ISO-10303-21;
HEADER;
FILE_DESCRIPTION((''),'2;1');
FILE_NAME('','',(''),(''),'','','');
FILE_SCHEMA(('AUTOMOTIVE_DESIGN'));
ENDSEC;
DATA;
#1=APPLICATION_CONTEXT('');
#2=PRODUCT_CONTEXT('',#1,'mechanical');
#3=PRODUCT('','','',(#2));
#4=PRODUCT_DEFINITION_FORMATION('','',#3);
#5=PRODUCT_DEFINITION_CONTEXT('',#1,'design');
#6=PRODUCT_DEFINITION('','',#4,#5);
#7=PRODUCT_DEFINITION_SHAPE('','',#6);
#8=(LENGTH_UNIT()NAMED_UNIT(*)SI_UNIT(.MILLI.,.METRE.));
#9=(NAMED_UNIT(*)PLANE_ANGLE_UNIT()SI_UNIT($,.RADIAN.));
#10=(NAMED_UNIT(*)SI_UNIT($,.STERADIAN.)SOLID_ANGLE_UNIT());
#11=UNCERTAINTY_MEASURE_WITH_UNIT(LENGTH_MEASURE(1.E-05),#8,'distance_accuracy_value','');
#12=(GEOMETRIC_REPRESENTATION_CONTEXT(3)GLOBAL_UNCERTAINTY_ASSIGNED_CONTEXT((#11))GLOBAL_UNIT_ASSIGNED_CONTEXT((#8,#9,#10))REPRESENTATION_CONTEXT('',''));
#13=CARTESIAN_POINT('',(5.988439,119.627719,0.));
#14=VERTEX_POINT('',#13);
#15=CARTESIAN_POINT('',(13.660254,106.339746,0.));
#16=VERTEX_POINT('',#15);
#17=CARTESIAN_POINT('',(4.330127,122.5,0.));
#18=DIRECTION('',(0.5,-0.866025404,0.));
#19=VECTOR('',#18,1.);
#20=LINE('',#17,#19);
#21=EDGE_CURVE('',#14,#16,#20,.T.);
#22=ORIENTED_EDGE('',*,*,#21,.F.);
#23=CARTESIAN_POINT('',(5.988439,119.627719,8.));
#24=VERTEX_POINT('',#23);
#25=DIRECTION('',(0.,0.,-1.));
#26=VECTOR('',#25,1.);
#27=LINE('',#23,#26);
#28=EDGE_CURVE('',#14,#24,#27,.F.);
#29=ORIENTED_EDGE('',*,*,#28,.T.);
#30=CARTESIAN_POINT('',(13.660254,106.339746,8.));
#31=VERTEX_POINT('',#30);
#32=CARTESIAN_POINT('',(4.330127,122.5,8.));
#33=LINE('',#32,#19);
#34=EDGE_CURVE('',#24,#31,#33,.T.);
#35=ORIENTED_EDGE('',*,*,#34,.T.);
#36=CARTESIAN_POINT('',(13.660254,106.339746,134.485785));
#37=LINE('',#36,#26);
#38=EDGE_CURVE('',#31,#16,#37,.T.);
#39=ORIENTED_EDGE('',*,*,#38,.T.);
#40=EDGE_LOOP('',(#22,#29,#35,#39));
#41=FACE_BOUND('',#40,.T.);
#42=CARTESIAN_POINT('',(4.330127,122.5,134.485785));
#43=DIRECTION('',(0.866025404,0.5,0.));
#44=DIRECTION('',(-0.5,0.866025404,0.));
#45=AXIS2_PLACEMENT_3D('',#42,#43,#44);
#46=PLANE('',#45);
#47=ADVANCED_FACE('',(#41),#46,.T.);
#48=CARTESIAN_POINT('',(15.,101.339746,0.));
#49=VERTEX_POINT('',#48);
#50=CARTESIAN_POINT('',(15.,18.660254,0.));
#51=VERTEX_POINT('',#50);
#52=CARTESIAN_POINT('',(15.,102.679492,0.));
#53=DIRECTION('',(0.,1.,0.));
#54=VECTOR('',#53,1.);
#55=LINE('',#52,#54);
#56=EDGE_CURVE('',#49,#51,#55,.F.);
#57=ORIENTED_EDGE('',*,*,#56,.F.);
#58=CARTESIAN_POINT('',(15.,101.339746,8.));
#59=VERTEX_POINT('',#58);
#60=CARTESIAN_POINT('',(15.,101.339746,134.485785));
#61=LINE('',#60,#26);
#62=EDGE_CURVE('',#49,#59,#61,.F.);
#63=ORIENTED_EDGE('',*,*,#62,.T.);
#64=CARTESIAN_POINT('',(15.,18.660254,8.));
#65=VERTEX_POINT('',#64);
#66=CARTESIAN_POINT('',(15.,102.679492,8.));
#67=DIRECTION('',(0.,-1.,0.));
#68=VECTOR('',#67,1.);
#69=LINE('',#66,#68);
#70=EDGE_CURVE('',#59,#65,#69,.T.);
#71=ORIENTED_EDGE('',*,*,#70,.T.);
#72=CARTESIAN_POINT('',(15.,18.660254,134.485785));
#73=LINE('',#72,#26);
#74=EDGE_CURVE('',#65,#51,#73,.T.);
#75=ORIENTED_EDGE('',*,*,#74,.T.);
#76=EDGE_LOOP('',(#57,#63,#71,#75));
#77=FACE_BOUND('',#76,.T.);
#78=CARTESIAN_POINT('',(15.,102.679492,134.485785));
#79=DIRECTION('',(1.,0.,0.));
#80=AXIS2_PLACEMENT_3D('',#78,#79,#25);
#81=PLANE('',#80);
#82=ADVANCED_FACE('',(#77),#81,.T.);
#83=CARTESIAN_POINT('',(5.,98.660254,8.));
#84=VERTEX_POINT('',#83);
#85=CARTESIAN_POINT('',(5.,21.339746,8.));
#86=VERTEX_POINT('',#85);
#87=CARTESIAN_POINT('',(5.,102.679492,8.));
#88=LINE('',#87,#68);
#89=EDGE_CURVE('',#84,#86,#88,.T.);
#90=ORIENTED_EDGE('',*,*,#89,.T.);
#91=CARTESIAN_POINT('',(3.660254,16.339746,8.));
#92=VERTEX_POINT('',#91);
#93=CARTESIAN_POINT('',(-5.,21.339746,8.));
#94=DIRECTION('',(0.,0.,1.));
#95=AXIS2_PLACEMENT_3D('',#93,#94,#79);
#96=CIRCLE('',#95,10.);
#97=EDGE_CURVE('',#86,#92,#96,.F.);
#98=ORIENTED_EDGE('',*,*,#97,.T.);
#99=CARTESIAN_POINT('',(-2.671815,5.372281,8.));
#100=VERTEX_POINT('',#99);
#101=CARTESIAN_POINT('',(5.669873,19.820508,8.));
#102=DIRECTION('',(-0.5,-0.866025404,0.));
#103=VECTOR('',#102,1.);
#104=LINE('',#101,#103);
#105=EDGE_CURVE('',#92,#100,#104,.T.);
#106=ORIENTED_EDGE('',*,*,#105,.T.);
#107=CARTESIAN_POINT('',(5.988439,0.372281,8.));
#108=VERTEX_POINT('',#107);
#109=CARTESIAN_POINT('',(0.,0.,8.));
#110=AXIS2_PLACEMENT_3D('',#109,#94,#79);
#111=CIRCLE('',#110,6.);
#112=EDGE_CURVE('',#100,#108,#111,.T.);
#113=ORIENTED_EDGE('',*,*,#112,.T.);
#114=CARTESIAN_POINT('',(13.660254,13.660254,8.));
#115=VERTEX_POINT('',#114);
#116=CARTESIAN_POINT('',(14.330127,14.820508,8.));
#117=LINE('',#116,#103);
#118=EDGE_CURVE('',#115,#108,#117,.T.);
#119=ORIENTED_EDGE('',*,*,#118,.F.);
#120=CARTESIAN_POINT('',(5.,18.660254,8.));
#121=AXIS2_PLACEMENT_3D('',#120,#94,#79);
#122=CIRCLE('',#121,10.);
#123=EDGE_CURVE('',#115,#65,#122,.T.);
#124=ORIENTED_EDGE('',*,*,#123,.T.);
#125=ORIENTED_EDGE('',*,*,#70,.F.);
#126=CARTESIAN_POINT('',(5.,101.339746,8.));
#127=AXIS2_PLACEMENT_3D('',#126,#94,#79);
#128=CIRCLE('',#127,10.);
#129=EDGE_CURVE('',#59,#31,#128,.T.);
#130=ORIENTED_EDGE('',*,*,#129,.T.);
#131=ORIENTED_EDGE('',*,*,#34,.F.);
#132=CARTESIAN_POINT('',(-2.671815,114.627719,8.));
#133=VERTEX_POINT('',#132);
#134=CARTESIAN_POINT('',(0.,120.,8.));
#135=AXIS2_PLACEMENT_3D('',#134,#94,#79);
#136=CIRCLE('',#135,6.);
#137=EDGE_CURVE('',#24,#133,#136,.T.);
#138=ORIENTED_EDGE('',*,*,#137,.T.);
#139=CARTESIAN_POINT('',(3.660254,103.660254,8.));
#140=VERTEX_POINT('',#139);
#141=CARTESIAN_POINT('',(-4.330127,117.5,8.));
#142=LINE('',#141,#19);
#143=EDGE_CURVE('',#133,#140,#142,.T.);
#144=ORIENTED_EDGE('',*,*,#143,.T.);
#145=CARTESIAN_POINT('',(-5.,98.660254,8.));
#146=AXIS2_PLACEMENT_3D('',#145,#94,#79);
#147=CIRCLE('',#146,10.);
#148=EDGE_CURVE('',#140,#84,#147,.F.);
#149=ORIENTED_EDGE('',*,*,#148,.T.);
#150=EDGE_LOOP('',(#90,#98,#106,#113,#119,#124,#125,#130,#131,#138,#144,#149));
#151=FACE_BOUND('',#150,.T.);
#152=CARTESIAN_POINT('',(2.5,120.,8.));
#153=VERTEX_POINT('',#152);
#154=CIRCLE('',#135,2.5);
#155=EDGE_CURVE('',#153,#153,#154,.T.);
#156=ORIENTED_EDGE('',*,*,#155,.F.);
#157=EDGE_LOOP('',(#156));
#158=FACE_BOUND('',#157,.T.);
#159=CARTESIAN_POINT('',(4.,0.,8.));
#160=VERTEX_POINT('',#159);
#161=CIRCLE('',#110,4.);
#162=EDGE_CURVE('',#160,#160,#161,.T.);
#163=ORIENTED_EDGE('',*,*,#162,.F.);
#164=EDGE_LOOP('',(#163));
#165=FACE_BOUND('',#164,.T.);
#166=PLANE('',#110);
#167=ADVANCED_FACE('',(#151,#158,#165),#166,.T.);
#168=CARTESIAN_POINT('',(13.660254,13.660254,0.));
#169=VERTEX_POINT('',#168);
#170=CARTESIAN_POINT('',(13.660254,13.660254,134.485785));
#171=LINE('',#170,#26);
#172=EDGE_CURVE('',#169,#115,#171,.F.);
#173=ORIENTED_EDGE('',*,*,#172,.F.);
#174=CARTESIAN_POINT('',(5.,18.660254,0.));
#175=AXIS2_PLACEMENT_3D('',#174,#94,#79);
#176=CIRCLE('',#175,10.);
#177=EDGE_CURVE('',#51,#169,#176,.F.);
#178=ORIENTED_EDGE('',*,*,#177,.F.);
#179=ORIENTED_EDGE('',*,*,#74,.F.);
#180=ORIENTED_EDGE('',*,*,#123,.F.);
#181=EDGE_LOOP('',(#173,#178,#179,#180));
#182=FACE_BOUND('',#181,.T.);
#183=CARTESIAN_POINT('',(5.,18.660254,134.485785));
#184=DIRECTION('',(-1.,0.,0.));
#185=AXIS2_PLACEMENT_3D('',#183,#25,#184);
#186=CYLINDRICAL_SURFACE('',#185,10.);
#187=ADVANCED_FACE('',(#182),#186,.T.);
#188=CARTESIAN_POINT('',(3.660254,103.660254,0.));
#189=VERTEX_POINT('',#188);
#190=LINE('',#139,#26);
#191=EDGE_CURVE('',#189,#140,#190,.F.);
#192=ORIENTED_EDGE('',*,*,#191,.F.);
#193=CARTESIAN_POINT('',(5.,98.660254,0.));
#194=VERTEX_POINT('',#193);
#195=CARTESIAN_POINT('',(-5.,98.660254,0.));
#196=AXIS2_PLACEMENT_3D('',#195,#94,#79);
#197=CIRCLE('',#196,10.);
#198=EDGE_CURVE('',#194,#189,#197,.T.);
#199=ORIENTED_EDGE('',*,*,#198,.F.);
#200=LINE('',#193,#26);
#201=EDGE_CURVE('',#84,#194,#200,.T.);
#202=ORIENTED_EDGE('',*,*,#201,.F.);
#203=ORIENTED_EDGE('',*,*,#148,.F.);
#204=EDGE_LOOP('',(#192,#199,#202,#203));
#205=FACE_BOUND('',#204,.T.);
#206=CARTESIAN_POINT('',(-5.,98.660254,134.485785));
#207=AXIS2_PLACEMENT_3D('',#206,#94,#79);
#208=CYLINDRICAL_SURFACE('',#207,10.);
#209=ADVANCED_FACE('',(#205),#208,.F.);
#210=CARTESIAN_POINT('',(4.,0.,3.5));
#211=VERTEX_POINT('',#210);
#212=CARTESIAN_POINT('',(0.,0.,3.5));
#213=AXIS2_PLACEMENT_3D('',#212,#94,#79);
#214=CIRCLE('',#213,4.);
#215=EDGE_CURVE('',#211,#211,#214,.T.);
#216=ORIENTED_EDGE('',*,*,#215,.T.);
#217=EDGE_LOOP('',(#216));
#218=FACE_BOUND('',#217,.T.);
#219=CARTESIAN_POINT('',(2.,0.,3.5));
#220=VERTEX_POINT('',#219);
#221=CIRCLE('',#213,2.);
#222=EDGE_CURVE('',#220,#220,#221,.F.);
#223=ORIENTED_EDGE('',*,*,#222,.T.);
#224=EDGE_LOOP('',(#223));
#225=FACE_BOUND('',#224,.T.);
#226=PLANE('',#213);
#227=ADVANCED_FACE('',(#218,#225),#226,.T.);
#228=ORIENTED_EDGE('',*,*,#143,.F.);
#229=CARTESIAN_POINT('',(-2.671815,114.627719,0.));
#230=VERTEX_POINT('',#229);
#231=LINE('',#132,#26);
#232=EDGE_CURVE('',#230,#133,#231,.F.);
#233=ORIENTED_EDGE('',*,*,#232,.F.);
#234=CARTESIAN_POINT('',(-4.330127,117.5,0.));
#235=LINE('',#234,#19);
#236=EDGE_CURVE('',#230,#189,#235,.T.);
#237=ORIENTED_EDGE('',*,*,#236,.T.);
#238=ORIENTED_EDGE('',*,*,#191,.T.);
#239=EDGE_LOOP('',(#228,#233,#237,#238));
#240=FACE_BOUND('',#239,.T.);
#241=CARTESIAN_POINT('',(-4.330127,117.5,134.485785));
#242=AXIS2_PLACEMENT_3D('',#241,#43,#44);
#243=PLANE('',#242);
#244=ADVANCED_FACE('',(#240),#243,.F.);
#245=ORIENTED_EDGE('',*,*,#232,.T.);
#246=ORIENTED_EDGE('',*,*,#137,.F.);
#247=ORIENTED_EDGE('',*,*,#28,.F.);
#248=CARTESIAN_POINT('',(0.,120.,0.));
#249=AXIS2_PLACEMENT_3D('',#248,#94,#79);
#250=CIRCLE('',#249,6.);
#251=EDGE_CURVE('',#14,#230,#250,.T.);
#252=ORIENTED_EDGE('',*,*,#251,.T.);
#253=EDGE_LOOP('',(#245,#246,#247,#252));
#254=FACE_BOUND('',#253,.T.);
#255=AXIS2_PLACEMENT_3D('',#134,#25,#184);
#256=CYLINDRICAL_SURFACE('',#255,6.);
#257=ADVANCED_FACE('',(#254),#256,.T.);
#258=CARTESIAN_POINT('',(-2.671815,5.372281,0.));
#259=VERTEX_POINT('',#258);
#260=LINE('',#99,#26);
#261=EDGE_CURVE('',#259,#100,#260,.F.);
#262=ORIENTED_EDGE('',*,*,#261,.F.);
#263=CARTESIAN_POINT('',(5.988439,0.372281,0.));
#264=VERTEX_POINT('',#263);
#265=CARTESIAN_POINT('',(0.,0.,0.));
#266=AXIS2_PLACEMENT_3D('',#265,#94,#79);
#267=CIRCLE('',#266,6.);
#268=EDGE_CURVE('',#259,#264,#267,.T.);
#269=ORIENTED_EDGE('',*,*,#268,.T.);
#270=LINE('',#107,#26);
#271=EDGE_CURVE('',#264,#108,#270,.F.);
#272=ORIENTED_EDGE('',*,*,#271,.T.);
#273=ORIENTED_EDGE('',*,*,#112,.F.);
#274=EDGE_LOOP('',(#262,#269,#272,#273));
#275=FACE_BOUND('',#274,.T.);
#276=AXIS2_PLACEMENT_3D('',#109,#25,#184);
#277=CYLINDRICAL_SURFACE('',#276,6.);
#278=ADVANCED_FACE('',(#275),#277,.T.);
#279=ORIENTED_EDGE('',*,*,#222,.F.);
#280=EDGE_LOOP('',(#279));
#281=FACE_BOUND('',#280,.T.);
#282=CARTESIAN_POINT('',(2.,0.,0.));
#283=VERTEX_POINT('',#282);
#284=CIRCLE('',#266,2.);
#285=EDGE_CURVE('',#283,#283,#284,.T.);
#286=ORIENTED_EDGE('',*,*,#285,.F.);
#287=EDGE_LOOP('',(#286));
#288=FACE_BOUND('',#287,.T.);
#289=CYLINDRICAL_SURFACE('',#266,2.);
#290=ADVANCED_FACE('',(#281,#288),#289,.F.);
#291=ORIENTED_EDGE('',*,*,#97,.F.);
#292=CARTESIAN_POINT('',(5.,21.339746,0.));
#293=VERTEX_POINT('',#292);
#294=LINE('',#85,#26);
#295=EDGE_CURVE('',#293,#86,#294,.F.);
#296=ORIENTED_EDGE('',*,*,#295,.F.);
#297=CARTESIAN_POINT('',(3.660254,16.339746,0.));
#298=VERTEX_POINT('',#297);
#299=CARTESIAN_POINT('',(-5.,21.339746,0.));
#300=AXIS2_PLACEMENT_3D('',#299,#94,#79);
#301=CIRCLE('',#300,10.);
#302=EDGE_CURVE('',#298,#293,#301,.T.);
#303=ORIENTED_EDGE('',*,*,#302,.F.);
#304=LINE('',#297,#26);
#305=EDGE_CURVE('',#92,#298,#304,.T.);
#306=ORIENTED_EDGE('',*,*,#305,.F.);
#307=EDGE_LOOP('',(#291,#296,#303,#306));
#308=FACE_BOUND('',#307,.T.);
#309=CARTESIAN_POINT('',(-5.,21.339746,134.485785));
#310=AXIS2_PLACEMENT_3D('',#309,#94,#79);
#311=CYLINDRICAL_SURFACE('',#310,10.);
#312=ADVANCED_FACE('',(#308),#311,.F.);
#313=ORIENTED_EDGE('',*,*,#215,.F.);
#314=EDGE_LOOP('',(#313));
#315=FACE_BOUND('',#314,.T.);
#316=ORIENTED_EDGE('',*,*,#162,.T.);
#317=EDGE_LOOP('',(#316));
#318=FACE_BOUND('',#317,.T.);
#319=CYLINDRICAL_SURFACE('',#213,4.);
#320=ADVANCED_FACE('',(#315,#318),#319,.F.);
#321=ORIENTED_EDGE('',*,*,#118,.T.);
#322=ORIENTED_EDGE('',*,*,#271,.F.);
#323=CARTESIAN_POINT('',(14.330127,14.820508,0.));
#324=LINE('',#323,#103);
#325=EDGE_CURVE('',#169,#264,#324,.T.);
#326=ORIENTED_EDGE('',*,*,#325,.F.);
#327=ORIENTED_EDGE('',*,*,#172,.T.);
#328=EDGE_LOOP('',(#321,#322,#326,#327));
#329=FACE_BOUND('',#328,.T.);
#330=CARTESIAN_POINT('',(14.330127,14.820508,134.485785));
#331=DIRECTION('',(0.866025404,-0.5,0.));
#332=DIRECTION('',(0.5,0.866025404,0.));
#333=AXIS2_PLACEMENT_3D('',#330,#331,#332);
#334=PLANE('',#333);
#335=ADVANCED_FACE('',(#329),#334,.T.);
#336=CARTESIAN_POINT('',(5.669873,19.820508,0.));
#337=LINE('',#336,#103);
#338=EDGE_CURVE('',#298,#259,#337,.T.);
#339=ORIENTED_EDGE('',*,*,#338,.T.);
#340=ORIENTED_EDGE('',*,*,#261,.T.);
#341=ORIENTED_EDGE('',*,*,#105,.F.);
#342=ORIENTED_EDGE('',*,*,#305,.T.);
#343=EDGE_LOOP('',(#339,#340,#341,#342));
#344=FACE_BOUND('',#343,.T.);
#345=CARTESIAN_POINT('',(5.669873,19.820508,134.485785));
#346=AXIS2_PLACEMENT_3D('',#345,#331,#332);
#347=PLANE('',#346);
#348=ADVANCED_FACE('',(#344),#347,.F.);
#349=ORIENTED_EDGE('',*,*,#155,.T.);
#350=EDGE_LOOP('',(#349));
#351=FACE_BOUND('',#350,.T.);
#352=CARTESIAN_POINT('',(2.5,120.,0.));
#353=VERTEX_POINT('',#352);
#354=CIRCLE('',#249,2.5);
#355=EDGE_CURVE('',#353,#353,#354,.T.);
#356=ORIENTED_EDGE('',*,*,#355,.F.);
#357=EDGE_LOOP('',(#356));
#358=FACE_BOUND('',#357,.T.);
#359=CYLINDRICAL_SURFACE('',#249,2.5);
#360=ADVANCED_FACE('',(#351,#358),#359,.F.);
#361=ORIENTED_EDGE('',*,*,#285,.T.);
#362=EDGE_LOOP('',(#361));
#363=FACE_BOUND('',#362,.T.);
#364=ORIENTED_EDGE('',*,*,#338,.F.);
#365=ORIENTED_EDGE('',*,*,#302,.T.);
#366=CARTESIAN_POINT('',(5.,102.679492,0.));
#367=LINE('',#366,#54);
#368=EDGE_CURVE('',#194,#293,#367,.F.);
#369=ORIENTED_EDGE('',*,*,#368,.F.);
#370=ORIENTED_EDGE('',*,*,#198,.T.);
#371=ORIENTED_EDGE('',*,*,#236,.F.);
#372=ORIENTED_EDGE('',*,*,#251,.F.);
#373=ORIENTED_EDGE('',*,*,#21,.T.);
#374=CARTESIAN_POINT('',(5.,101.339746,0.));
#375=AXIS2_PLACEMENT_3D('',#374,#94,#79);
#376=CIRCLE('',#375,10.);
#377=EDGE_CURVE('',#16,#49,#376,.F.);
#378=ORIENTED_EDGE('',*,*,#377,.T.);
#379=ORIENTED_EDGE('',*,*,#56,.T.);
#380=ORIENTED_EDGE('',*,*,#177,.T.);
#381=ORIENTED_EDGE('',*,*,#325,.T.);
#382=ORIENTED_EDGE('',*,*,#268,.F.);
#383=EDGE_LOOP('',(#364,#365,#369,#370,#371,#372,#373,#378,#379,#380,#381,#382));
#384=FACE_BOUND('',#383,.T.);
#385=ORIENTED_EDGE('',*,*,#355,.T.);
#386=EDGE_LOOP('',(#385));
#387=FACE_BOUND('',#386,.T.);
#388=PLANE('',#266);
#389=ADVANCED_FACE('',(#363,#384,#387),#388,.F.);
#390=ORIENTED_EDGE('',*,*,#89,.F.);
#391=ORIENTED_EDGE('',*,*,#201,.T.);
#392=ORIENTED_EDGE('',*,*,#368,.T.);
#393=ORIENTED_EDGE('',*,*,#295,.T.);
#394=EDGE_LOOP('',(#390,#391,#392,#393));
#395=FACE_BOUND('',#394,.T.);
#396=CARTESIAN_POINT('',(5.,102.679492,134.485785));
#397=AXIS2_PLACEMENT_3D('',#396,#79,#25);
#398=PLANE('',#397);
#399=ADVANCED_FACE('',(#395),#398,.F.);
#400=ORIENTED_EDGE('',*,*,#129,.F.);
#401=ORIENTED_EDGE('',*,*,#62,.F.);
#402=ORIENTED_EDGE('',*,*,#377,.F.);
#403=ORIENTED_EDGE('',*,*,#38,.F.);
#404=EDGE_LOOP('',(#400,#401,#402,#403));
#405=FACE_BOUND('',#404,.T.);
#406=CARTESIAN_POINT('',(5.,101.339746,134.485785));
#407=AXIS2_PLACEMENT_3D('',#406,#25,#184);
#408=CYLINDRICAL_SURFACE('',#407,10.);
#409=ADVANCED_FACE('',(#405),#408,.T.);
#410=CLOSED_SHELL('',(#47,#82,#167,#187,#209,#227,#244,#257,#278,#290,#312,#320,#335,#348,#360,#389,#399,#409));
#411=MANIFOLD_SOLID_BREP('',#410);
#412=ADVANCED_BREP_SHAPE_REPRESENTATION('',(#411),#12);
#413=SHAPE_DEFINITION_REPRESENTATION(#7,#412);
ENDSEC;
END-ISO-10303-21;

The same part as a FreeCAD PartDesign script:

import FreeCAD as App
import Part
import Sketcher
Q = App.Units.Quantity


def edges_at(feature, points):
    """Names of the edges that pass closest to the given points."""
    edges = feature.Shape.Edges
    near = lambda p: min(range(len(edges)), key=lambda i: edges[i].distToShape(Part.Vertex(*p))[0])
    return sorted({f"Edge{near(p) + 1}" for p in points})

doc = App.newDocument("Part")
body = doc.addObject("PartDesign::Body", "Body")

sketch1 = doc.addObject("Sketcher::SketchObject", "Sketch")
body.addObject(sketch1)
sketch1.AttachmentSupport = (doc.XY_Plane, [""])
sketch1.MapMode = "FlatFace"
sketch1.addGeometry(Part.Circle(App.Vector(0, 0, 0), App.Vector(0, 0, 1), 6), False)
sketch1.addConstraint(Sketcher.Constraint("Coincident", 0, 3, -1, 1))
sketch1.addConstraint(Sketcher.Constraint("Diameter", 0, Q("12 mm")))
pad1 = doc.addObject("PartDesign::Pad", "Pad")
body.addObject(pad1)
pad1.Profile = sketch1
pad1.Length = 8
body2 = doc.addObject("PartDesign::Body", "Body001")

sketch2 = doc.addObject("Sketcher::SketchObject", "Sketch001")
body2.addObject(sketch2)
sketch2.AttachmentSupport = (doc.getObject("XY_Plane001"), [""])
sketch2.MapMode = "FlatFace"
sketch2.addGeometry(Part.Circle(App.Vector(0, 120, 0), App.Vector(0, 0, 1), 6), False)
sketch2.addConstraint(Sketcher.Constraint("PointOnObject", 0, 3, -2))
sketch2.addConstraint(Sketcher.Constraint("Diameter", 0, Q("12 mm")))
sketch2.addConstraint(Sketcher.Constraint("DistanceY", -1, 1, 0, 3, Q("120 mm")))
pad2 = doc.addObject("PartDesign::Pad", "Pad001")
body2.addObject(pad2)
pad2.Profile = sketch2
pad2.Length = 8
body.AllowCompound = True
doc.recompute()

boolean = doc.addObject("PartDesign::Boolean", "Boolean")
body.addObject(boolean)
boolean.Type = "Fuse"
boolean.addObjects([body2])

sketch3 = doc.addObject("Sketcher::SketchObject", "Sketch002")
body.addObject(sketch3)
sketch3.AttachmentSupport = (doc.XY_Plane, [""])
sketch3.MapMode = "FlatFace"
sketch3.addGeometry(Part.LineSegment(App.Vector(-4, 118, 0), App.Vector(5, 101, 0)), False)
sketch3.addGeometry(Part.LineSegment(App.Vector(5, 101, 0), App.Vector(5, 19, 0)), False)
sketch3.addGeometry(Part.LineSegment(App.Vector(5, 19, 0), App.Vector(-4, 2, 0)), False)
sketch3.addGeometry(Part.LineSegment(App.Vector(-4, 2, 0), App.Vector(4, -2, 0)), False)
sketch3.addGeometry(Part.LineSegment(App.Vector(4, -2, 0), App.Vector(15, 16, 0)), False)
sketch3.addGeometry(Part.LineSegment(App.Vector(15, 16, 0), App.Vector(15, 104, 0)), False)
sketch3.addGeometry(Part.LineSegment(App.Vector(15, 104, 0), App.Vector(4, 122, 0)), False)
sketch3.addGeometry(Part.LineSegment(App.Vector(4, 122, 0), App.Vector(-4, 118, 0)), False)
sketch3.addConstraint(Sketcher.Constraint("Coincident", 0, 2, 1, 1))
sketch3.addConstraint(Sketcher.Constraint("Coincident", 1, 2, 2, 1))
sketch3.addConstraint(Sketcher.Constraint("Coincident", 2, 2, 3, 1))
sketch3.addConstraint(Sketcher.Constraint("Coincident", 3, 2, 4, 1))
sketch3.addConstraint(Sketcher.Constraint("Coincident", 4, 2, 5, 1))
sketch3.addConstraint(Sketcher.Constraint("Coincident", 5, 2, 6, 1))
sketch3.addConstraint(Sketcher.Constraint("Coincident", 6, 2, 7, 1))
sketch3.addConstraint(Sketcher.Constraint("Coincident", 7, 2, 0, 1))
sketch3.addConstraint(Sketcher.Constraint("Vertical", 1))
sketch3.addConstraint(Sketcher.Constraint("Vertical", 5))
sketch3.addConstraint(Sketcher.Constraint("Symmetric", 2, 2, 3, 2, -1, 1))
sketch3.addConstraint(Sketcher.Constraint("Perpendicular", 2, 3))
sketch3.addConstraint(Sketcher.Constraint("Perpendicular", 3, 4))
sketch3.addConstraint(Sketcher.Constraint("Parallel", 0, 6))
sketch3.addConstraint(Sketcher.Constraint("Perpendicular", 6, 7))
sketch3.addConstraint(Sketcher.Constraint("Vertical", 3, 2, 6, 2))
sketch3.addConstraint(Sketcher.Constraint("Vertical", 2, 2, 7, 2))
sketch3.addConstraint(Sketcher.Constraint("Equal", 0, 2))
sketch3.addConstraint(Sketcher.Constraint("Angle", 0, Q("-60 deg")))
sketch3.addConstraint(Sketcher.Constraint("Distance", 3, Q("10 mm")))
sketch3.addConstraint(Sketcher.Constraint("DistanceX", -1, 1, 0, 2, Q("5 mm")))
sketch3.addConstraint(Sketcher.Constraint("DistanceX", -1, 1, 4, 2, Q("15 mm")))
sketch3.addConstraint(Sketcher.Constraint("DistanceY", 2, 2, 6, 2, Q("120 mm")))
pad3 = doc.addObject("PartDesign::Pad", "Pad002")
body.addObject(pad3)
pad3.Profile = sketch3
pad3.Length = 8

sketch4 = doc.addObject("Sketcher::SketchObject", "Sketch003")
body.addObject(sketch4)
sketch4.AttachmentSupport = (doc.XY_Plane, [""])
sketch4.MapMode = "FlatFace"
sketch4.AttachmentOffset = App.Placement(App.Vector(0, 0, 8), App.Rotation())
sketch4.addGeometry(Part.Circle(App.Vector(0, 120, 0), App.Vector(0, 0, 1), 2.5), False)
sketch4.addConstraint(Sketcher.Constraint("PointOnObject", 0, 3, -2))
sketch4.addConstraint(Sketcher.Constraint("Diameter", 0, Q("5 mm")))
sketch4.addConstraint(Sketcher.Constraint("DistanceY", -1, 1, 0, 3, Q("120 mm")))
pocket1 = doc.addObject("PartDesign::Pocket", "Pocket")
body.addObject(pocket1)
pocket1.Profile = sketch4
pocket1.Type = "ThroughAll"

sketch5 = doc.addObject("Sketcher::SketchObject", "Sketch004")
body.addObject(sketch5)
sketch5.AttachmentSupport = (doc.XY_Plane, [""])
sketch5.MapMode = "FlatFace"
sketch5.AttachmentOffset = App.Placement(App.Vector(0, 0, 8), App.Rotation())
sketch5.addGeometry(Part.Circle(App.Vector(0, 0, 0), App.Vector(0, 0, 1), 2), False)
sketch5.addConstraint(Sketcher.Constraint("Coincident", 0, 3, -1, 1))
sketch5.addConstraint(Sketcher.Constraint("Diameter", 0, Q("4 mm")))
pocket2 = doc.addObject("PartDesign::Pocket", "Pocket001")
body.addObject(pocket2)
pocket2.Profile = sketch5
pocket2.Type = "ThroughAll"

sketch6 = doc.addObject("Sketcher::SketchObject", "Sketch005")
body.addObject(sketch6)
sketch6.AttachmentSupport = (doc.XY_Plane, [""])
sketch6.MapMode = "FlatFace"
sketch6.AttachmentOffset = App.Placement(App.Vector(0, 0, 8), App.Rotation())
sketch6.addGeometry(Part.Circle(App.Vector(0, 0, 0), App.Vector(0, 0, 1), 4), False)
sketch6.addConstraint(Sketcher.Constraint("Coincident", 0, 3, -1, 1))
sketch6.addConstraint(Sketcher.Constraint("Diameter", 0, Q("8 mm")))
pocket3 = doc.addObject("PartDesign::Pocket", "Pocket002")
body.addObject(pocket3)
pocket3.Profile = sketch6
pocket3.Length = 4.5
doc.recompute()

fillet = doc.addObject("PartDesign::Fillet", "Fillet")
body.addObject(fillet)
fillet.Base = (pocket3, edges_at(pocket3, [
    (5, 18.66, 4),
    (15, 15.981, 4),
    (15, 104.019, 4),
    (5, 101.34, 4),
]))
fillet.Radius = 10

doc.recompute()
